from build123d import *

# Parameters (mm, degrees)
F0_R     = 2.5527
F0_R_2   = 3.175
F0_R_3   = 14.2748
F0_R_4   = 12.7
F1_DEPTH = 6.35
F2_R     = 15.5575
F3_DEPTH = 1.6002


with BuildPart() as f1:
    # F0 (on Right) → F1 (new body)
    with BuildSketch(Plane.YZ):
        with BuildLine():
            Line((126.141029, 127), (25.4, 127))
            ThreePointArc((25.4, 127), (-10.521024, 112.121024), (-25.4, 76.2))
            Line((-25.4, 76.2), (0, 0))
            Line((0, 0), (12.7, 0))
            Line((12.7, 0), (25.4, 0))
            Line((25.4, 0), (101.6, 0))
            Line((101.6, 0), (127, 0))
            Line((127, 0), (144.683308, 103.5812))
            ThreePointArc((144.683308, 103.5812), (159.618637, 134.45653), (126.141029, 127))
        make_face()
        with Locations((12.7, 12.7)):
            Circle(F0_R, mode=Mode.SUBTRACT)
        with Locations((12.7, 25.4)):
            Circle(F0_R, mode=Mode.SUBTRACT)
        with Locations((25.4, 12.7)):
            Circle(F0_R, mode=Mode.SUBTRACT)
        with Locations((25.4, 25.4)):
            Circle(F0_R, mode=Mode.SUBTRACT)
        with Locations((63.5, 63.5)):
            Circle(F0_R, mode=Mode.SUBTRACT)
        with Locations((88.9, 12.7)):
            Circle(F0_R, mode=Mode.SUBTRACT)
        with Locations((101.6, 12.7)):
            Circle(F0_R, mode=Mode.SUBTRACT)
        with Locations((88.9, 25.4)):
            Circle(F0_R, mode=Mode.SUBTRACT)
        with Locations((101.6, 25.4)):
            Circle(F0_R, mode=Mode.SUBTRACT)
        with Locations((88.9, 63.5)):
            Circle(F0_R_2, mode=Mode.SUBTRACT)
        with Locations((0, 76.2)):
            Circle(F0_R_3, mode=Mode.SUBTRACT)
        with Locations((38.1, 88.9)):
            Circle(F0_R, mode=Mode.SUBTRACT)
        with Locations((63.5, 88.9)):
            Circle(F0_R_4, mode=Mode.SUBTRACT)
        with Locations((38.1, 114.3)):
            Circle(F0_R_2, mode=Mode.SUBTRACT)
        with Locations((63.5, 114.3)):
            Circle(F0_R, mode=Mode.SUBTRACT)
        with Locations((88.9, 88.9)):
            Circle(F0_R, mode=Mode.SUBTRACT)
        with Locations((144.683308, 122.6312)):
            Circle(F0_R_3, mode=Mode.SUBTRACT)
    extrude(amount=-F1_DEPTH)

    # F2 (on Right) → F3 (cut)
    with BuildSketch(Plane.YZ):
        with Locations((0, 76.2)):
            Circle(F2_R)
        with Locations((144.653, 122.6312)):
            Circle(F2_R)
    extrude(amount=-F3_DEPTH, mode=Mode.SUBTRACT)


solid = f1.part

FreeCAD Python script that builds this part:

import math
import FreeCAD as App
import Part
import Sketcher

V = App.Vector
Q = App.Units.Quantity

doc = App.newDocument("Part")
body = doc.addObject("PartDesign::Body", "Body")

# Sketch on YZ plane
sketch1 = doc.addObject("Sketcher::SketchObject", "Sketch")
body.addObject(sketch1)
sketch1.AttachmentSupport = (doc.YZ_Plane, [""])
sketch1.MapMode = "FlatFace"
sketch1.addGeometry(Part.LineSegment(V(126.141029, 127, 0), V(25.4, 127, 0)), False)
sketch1.addGeometry(Part.ArcOfCircle(Part.Circle(V(25.400002, 76.199998, 0), V(0, 0, 1), 50.800002), math.radians(90.000002), math.radians(179.999998)), False)
sketch1.addGeometry(Part.LineSegment(V(-25.4, 76.2, 0), V(0, 0, 0)), False)
sketch1.addGeometry(Part.LineSegment(V(0, 0, 0), V(127, 0, 0)), False)
sketch1.addGeometry(Part.LineSegment(V(127, 0, 0), V(144.683308, 103.5812, 0)), False)
sketch1.addGeometry(Part.ArcOfCircle(Part.Circle(V(144.683307, 122.6312, 0), V(0, 0, 1), 19.05), math.radians(-89.999998), math.radians(166.742175)), False)
sketch1.addGeometry(Part.Circle(V(12.7, 12.7, 0), V(0, 0, 1), 2.5527), False)
sketch1.addGeometry(Part.Circle(V(25.4, 12.7, 0), V(0, 0, 1), 2.5527), False)
sketch1.addGeometry(Part.Circle(V(12.7, 25.4, 0), V(0, 0, 1), 2.5527), False)
sketch1.addGeometry(Part.Circle(V(25.4, 25.4, 0), V(0, 0, 1), 2.5527), False)
sketch1.addGeometry(Part.Circle(V(63.5, 63.5, 0), V(0, 0, 1), 2.5527), False)
sketch1.addGeometry(Part.Circle(V(88.9, 12.7, 0), V(0, 0, 1), 2.5527), False)
sketch1.addGeometry(Part.Circle(V(88.9, 25.4, 0), V(0, 0, 1), 2.5527), False)
sketch1.addGeometry(Part.Circle(V(101.6, 12.7, 0), V(0, 0, 1), 2.5527), False)
sketch1.addGeometry(Part.Circle(V(101.6, 25.4, 0), V(0, 0, 1), 2.5527), False)
sketch1.addGeometry(Part.Circle(V(88.9, 63.5, 0), V(0, 0, 1), 3.175), False)
sketch1.addGeometry(Part.Circle(V(0, 76.2, 0), V(0, 0, 1), 14.2748), False)
sketch1.addGeometry(Part.Circle(V(38.1, 88.9, 0), V(0, 0, 1), 2.5527), False)
sketch1.addGeometry(Part.Circle(V(63.5, 88.9, 0), V(0, 0, 1), 12.7), False)
sketch1.addGeometry(Part.Circle(V(38.1, 114.3, 0), V(0, 0, 1), 3.175), False)
sketch1.addGeometry(Part.Circle(V(63.5, 114.3, 0), V(0, 0, 1), 2.5527), False)
sketch1.addGeometry(Part.Circle(V(88.9, 88.9, 0), V(0, 0, 1), 2.5527), False)
sketch1.addGeometry(Part.Circle(V(144.683308, 122.6312, 0), V(0, 0, 1), 14.2748), False)
sketch1.addConstraint(Sketcher.Constraint("Tangent", 0, 2, 1, 1))
sketch1.addConstraint(Sketcher.Constraint("Coincident", 1, 2, 2, 1))
sketch1.addConstraint(Sketcher.Constraint("Coincident", 2, 2, 3, 1))
sketch1.addConstraint(Sketcher.Constraint("Coincident", 3, 2, 4, 1))
sketch1.addConstraint(Sketcher.Constraint("Coincident", 4, 2, 5, 1))
sketch1.addConstraint(Sketcher.Constraint("Coincident", 5, 2, 0, 1))
sketch1.addConstraint(Sketcher.Constraint("Horizontal", 0))
sketch1.addConstraint(Sketcher.Constraint("Horizontal", 3))
sketch1.addConstraint(Sketcher.Constraint("Coincident", 2, 2, -1, 1))
sketch1.addConstraint(Sketcher.Constraint("Coincident", 22, 3, 5, 3))
sketch1.addConstraint(Sketcher.Constraint("Equal", 6, 7))
sketch1.addConstraint(Sketcher.Constraint("Equal", 7, 8))
sketch1.addConstraint(Sketcher.Constraint("Equal", 8, 9))
sketch1.addConstraint(Sketcher.Constraint("Equal", 9, 10))
sketch1.addConstraint(Sketcher.Constraint("Equal", 10, 11))
sketch1.addConstraint(Sketcher.Constraint("Equal", 11, 12))
sketch1.addConstraint(Sketcher.Constraint("Equal", 12, 13))
sketch1.addConstraint(Sketcher.Constraint("Equal", 13, 14))
sketch1.addConstraint(Sketcher.Constraint("Equal", 14, 17))
sketch1.addConstraint(Sketcher.Constraint("Equal", 15, 19))
sketch1.addConstraint(Sketcher.Constraint("Equal", 17, 20))
sketch1.addConstraint(Sketcher.Constraint("Equal", 20, 21))
sketch1.addConstraint(Sketcher.Constraint("Equal", 16, 22))
sketch1.addConstraint(Sketcher.Constraint("PointOnObject", 16, 3, -2))
sketch1.addConstraint(Sketcher.Constraint("Horizontal", 6, 3, 7, 3))
sketch1.addConstraint(Sketcher.Constraint("Horizontal", 8, 3, 9, 3))
sketch1.addConstraint(Sketcher.Constraint("Horizontal", 7, 3, 11, 3))
sketch1.addConstraint(Sketcher.Constraint("Horizontal", 9, 3, 12, 3))
sketch1.addConstraint(Sketcher.Constraint("Horizontal", 11, 3, 13, 3))
sketch1.addConstraint(Sketcher.Constraint("Horizontal", 12, 3, 14, 3))
sketch1.addConstraint(Sketcher.Constraint("Horizontal", 10, 3, 15, 3))
sketch1.addConstraint(Sketcher.Constraint("Horizontal", 1, 3, 16, 3))
sketch1.addConstraint(Sketcher.Constraint("Horizontal", 17, 3, 18, 3))
sketch1.addConstraint(Sketcher.Constraint("Horizontal", 19, 3, 20, 3))
sketch1.addConstraint(Sketcher.Constraint("Horizontal", 18, 3, 21, 3))
sketch1.addConstraint(Sketcher.Constraint("Horizontal", 16, 3, 1, 2))
sketch1.addConstraint(Sketcher.Constraint("Vertical", 1, 3, 7, 3))
sketch1.addConstraint(Sketcher.Constraint("Vertical", 6, 3, 8, 3))
sketch1.addConstraint(Sketcher.Constraint("Vertical", 7, 3, 9, 3))
sketch1.addConstraint(Sketcher.Constraint("Vertical", 11, 3, 12, 3))
sketch1.addConstraint(Sketcher.Constraint("Vertical", 13, 3, 14, 3))
sketch1.addConstraint(Sketcher.Constraint("Vertical", 12, 3, 15, 3))
sketch1.addConstraint(Sketcher.Constraint("Vertical", 10, 3, 18, 3))
sketch1.addConstraint(Sketcher.Constraint("Vertical", 17, 3, 19, 3))
sketch1.addConstraint(Sketcher.Constraint("Vertical", 18, 3, 20, 3))
sketch1.addConstraint(Sketcher.Constraint("Vertical", 15, 3, 21, 3))
sketch1.addConstraint(Sketcher.Constraint("Vertical", 22, 3, 4, 2))
sketch1.addConstraint(Sketcher.Constraint("Diameter", 18, Q("1 in")))
sketch1.addConstraint(Sketcher.Constraint("Radius", 1, Q("2.0000001 in")))
sketch1.addConstraint(Sketcher.Constraint("Diameter", 15, Q("0.25 in")))
sketch1.addConstraint(Sketcher.Constraint("DistanceX", 3, 1, 3, 2, Q("5 in")))
sketch1.addConstraint(Sketcher.Constraint("Radius", 5, Q("0.75 in")))
sketch1.addConstraint(Sketcher.Constraint("Diameter", 6, Q("0.201 in")))
sketch1.addConstraint(Sketcher.Constraint("Diameter", 16, Q("1.124 in")))
sketch1.addConstraint(Sketcher.Constraint("DistanceX", -1, 1, 1, 3, Q("1.0000001 in")))
sketch1.addConstraint(Sketcher.Constraint("DistanceY", -1, 1, 1, 3, Q("2.9999999 in")))
sketch1.addConstraint(Sketcher.Constraint("DistanceY", -1, 1, 8, 3, Q("1 in")))
sketch1.addConstraint(Sketcher.Constraint("DistanceX", -1, 1, 13, 3, Q("4 in")))
sketch1.addConstraint(Sketcher.Constraint("DistanceY", 7, 3, 10, 3, Q("2 in")))
sketch1.addConstraint(Sketcher.Constraint("DistanceX", 8, 3, 10, 3, Q("2 in")))
sketch1.addConstraint(Sketcher.Constraint("DistanceX", 10, 3, 11, 3, Q("1 in")))
sketch1.addConstraint(Sketcher.Constraint("DistanceX", 17, 3, 10, 3, Q("1 in")))
sketch1.addConstraint(Sketcher.Constraint("DistanceY", 10, 3, 17, 3, Q("1 in")))
sketch1.addConstraint(Sketcher.Constraint("DistanceY", 17, 3, 19, 3, Q("1 in")))
sketch1.addConstraint(Sketcher.Constraint("DistanceX", -1, 1, 6, 3, Q("0.5 in")))
sketch1.addConstraint(Sketcher.Constraint("DistanceY", -1, 1, 6, 3, Q("0.5 in")))
sketch1.addConstraint(Sketcher.Constraint("Distance", 4, Q("4.137 in")))
sketch1.addConstraint(Sketcher.Constraint("DistanceY", -1, 1, 5, 3, Q("4.828 in")))
pad1 = doc.addObject("PartDesign::Pad", "Pad")
body.addObject(pad1)
pad1.Profile = sketch1
pad1.Length = Q("0.25 in")
pad1.Reversed = True

# Sketch on YZ plane
sketch2 = doc.addObject("Sketcher::SketchObject", "Sketch001")
body.addObject(sketch2)
sketch2.AttachmentSupport = (doc.YZ_Plane, [""])
sketch2.MapMode = "FlatFace"
sketch2.addGeometry(Part.Circle(V(0, 76.2, 0), V(0, 0, 1), 15.5575), False)
sketch2.addGeometry(Part.Circle(V(144.653, 122.6312, 0), V(0, 0, 1), 15.5575), False)
sketch2.addConstraint(Sketcher.Constraint("Equal", 0, 1))
sketch2.addConstraint(Sketcher.Constraint("PointOnObject", 0, 3, -2))
sketch2.addConstraint(Sketcher.Constraint("Diameter", 0, Q("1.225 in")))
sketch2.addConstraint(Sketcher.Constraint("DistanceY", -1, 1, 0, 3, Q("3 in")))
sketch2.addConstraint(Sketcher.Constraint("DistanceX", -1, 1, 1, 3, Q("5.695 in")))
sketch2.addConstraint(Sketcher.Constraint("DistanceY", -1, 1, 1, 3, Q("4.828 in")))
pocket1 = doc.addObject("PartDesign::Pocket", "Pocket")
body.addObject(pocket1)
pocket1.Profile = sketch2
pocket1.Length = Q("0.063 in")

doc.recompute()
